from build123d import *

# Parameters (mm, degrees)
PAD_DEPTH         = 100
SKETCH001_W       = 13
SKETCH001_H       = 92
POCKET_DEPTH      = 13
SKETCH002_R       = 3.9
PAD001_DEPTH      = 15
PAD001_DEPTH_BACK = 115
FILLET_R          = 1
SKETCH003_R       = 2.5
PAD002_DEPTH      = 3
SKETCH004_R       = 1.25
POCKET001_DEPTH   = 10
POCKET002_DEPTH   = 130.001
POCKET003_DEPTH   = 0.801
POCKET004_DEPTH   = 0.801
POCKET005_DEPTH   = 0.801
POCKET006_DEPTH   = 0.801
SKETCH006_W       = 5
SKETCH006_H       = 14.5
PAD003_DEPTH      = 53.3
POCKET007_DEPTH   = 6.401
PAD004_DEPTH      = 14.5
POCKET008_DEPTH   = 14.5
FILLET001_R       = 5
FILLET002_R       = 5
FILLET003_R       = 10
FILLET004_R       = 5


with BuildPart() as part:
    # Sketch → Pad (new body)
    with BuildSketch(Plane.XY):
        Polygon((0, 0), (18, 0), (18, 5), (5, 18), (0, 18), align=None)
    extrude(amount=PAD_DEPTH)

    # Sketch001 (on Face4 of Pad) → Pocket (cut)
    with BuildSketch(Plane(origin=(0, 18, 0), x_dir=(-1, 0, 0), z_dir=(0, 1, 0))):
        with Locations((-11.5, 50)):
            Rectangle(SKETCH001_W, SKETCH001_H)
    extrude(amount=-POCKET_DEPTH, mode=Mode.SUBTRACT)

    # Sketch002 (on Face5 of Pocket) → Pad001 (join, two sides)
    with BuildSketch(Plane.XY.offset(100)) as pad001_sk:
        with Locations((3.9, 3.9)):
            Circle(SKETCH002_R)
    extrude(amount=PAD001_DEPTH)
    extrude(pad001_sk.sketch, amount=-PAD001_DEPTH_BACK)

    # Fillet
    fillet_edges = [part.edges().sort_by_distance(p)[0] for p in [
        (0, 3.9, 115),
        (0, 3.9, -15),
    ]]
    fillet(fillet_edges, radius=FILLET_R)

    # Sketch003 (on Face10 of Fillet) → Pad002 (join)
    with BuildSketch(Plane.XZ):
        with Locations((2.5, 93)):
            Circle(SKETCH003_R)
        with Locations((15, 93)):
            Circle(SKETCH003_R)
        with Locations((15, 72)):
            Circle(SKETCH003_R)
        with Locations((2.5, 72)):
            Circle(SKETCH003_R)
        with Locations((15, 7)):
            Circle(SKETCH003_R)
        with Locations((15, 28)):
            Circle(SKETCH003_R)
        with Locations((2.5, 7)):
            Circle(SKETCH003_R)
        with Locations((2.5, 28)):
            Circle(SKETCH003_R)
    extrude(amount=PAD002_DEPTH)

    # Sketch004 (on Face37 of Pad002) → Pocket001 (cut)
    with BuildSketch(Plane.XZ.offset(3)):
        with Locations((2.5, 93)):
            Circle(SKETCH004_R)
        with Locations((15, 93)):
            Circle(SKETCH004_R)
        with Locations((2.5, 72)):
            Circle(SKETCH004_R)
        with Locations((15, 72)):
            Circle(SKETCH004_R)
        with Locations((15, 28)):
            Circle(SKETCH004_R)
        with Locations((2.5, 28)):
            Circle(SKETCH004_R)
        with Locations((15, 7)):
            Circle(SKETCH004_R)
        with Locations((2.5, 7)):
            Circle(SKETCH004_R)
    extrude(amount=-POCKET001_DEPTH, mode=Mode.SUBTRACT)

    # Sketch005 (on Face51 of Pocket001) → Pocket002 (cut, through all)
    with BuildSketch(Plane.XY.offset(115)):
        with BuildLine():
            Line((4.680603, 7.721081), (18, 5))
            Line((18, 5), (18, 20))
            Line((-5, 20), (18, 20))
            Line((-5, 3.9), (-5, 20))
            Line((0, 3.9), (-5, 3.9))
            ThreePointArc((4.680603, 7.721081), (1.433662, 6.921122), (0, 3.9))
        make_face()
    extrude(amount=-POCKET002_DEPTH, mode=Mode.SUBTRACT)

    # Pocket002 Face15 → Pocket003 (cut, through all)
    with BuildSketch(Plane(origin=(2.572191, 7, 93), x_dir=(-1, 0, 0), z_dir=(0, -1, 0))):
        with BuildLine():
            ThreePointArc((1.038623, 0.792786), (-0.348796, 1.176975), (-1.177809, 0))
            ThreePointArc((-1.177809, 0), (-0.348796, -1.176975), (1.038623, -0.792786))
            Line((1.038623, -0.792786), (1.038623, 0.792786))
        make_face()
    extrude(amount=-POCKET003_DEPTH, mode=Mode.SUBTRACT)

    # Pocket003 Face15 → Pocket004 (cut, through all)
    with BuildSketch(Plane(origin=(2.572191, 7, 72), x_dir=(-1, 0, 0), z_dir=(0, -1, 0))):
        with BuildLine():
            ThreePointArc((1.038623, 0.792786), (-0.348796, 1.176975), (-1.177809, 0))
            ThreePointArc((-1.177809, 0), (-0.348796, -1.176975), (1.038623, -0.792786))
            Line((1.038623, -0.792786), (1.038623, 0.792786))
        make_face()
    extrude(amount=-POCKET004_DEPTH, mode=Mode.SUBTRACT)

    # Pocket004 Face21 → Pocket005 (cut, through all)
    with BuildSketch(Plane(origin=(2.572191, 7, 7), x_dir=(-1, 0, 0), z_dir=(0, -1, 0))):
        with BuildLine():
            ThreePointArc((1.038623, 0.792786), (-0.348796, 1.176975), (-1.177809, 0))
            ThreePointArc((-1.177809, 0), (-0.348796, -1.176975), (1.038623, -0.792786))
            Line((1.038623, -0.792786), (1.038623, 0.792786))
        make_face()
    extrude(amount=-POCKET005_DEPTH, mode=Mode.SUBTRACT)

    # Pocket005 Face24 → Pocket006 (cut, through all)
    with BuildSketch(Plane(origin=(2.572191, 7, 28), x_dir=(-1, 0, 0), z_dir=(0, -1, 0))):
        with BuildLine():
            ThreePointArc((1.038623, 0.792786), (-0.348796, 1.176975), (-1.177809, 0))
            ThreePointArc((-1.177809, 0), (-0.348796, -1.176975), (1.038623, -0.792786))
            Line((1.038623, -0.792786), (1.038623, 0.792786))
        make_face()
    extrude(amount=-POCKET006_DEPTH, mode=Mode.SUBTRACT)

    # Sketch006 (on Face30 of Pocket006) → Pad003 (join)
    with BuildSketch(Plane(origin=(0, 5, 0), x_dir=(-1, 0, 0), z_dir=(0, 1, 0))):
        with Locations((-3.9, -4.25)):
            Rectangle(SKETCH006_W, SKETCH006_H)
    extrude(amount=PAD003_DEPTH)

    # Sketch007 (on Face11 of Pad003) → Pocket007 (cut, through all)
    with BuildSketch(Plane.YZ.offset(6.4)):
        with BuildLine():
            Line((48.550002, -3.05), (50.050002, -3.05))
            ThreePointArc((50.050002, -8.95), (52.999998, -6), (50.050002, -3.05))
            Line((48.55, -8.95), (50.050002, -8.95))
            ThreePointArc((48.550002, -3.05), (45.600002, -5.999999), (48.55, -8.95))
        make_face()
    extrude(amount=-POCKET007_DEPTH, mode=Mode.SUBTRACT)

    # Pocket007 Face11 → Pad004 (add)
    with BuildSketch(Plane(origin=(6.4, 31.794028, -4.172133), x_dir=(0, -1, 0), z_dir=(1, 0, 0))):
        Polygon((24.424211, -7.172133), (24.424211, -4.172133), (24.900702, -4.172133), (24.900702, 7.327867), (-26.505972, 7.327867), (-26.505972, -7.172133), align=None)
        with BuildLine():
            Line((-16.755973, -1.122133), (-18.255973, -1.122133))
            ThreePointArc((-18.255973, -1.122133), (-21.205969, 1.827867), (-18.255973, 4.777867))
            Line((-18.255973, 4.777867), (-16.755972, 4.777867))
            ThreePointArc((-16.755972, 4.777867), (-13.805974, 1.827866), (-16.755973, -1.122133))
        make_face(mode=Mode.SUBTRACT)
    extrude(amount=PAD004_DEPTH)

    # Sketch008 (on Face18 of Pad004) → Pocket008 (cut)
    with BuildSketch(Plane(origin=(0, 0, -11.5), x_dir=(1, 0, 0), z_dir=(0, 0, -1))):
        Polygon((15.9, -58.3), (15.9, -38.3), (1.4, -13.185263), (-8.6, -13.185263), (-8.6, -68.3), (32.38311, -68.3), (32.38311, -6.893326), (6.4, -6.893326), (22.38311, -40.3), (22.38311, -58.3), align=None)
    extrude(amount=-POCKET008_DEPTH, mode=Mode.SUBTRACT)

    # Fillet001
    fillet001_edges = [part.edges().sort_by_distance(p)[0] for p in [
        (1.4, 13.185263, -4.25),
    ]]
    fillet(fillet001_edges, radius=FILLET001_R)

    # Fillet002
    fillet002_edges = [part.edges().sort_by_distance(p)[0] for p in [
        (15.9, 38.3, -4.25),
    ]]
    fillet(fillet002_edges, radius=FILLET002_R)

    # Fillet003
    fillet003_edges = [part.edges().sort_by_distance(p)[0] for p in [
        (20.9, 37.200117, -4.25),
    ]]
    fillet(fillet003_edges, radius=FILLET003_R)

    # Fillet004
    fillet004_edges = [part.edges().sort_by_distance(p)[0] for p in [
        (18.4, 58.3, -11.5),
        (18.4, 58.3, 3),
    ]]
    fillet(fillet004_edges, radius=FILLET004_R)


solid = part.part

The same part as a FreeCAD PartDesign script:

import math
import FreeCAD as App
import Part
import Sketcher
Q = App.Units.Quantity


def edges_at(feature, points):
    """Names of the edges that pass closest to the given points."""
    edges = feature.Shape.Edges
    near = lambda p: min(range(len(edges)), key=lambda i: edges[i].distToShape(Part.Vertex(*p))[0])
    return sorted({f"Edge{near(p) + 1}" for p in points})

doc = App.newDocument("Part")
body = doc.addObject("PartDesign::Body", "Body")

# Sketch on XY plane
sketch1 = body.newObject("Sketcher::SketchObject", "Sketch")
sketch1.AttachmentSupport = (doc.getObject("XY_Plane"), [""])
sketch1.MapMode = "FlatFace"
sketch1.addGeometry(Part.LineSegment(App.Vector(0, 0, 0), App.Vector(18, 0, 0)), False)
sketch1.addGeometry(Part.LineSegment(App.Vector(18, 0, 0), App.Vector(18, 5, 0)), False)
sketch1.addGeometry(Part.LineSegment(App.Vector(18, 5, 0), App.Vector(5, 18, 0)), False)
sketch1.addGeometry(Part.LineSegment(App.Vector(5, 18, 0), App.Vector(0, 18, 0)), False)
sketch1.addGeometry(Part.LineSegment(App.Vector(0, 18, 0), App.Vector(0, 0, 0)), False)
sketch1.addConstraint(Sketcher.Constraint("Coincident", 0, 2, 1, 1))
sketch1.addConstraint(Sketcher.Constraint("Coincident", 1, 2, 2, 1))
sketch1.addConstraint(Sketcher.Constraint("Coincident", 2, 2, 3, 1))
sketch1.addConstraint(Sketcher.Constraint("Coincident", 3, 2, 4, 1))
sketch1.addConstraint(Sketcher.Constraint("Coincident", 4, 2, 0, 1))
sketch1.addConstraint(Sketcher.Constraint("Horizontal", 0))
sketch1.addConstraint(Sketcher.Constraint("Vertical", 1))
sketch1.addConstraint(Sketcher.Constraint("Horizontal", 3))
sketch1.addConstraint(Sketcher.Constraint("Vertical", 4))
sketch1.addConstraint(Sketcher.Constraint("Coincident", 4, 2, -1, 1))
sketch1.addConstraint(Sketcher.Constraint("Equal", 3, 1))
sketch1.addConstraint(Sketcher.Constraint("Equal", 0, 4))
sketch1.addConstraint(Sketcher.Constraint("DistanceX", 0, 1, 0, 2, 18.0))
sketch1.addConstraint(Sketcher.Constraint("DistanceX", 3, 2, 3, 1, 5.0))
pad1 = body.newObject("PartDesign::Pad", "Pad")
pad1.Profile = sketch1
pad1.Length = 100

# Sketch on XZ plane
sketch2 = body.newObject("Sketcher::SketchObject", "Sketch001")
sketch2.AttachmentSupport = (doc.getObject("XZ_Plane"), [""])
sketch2.MapMode = "FlatFace"
sketch2.AttachmentOffset = App.Placement(App.Vector(0, 0, -18), App.Rotation())
sketch2.addGeometry(Part.LineSegment(App.Vector(18, 96, 0), App.Vector(18, 4, 0)), False)
sketch2.addGeometry(Part.LineSegment(App.Vector(18, 4, 0), App.Vector(5, 4, 0)), False)
sketch2.addGeometry(Part.LineSegment(App.Vector(5, 4, 0), App.Vector(5, 96, 0)), False)
sketch2.addGeometry(Part.LineSegment(App.Vector(5, 96, 0), App.Vector(18, 96, 0)), False)
sketch2.addConstraint(Sketcher.Constraint("Coincident", 0, 2, 1, 1))
sketch2.addConstraint(Sketcher.Constraint("Coincident", 1, 2, 2, 1))
sketch2.addConstraint(Sketcher.Constraint("Coincident", 2, 2, 3, 1))
sketch2.addConstraint(Sketcher.Constraint("Coincident", 3, 2, 0, 1))
sketch2.addConstraint(Sketcher.Constraint("Vertical", 0))
sketch2.addConstraint(Sketcher.Constraint("Horizontal", 1))
sketch2.addConstraint(Sketcher.Constraint("Vertical", 2))
sketch2.addConstraint(Sketcher.Constraint("Horizontal", 3))
sketch2.addConstraint(Sketcher.Constraint("DistanceX", 1, 2, 1, 1, 13.0))
sketch2.addConstraint(Sketcher.Constraint("DistanceY", 0, 2, 0, 1, 92.0))
sketch2.addConstraint(Sketcher.Constraint("DistanceX", -1, 1, 0, 2, 18.0))
sketch2.addConstraint(Sketcher.Constraint("DistanceY", -1, 1, 0, 2, 4.0))
pocket1 = body.newObject("PartDesign::Pocket", "Pocket")
pocket1.Profile = sketch2
pocket1.Length = 13
pocket1.Reversed = True

# Sketch on XY plane
sketch3 = body.newObject("Sketcher::SketchObject", "Sketch002")
sketch3.AttachmentSupport = (doc.getObject("XY_Plane"), [""])
sketch3.MapMode = "FlatFace"
sketch3.AttachmentOffset = App.Placement(App.Vector(0, 0, 100), App.Rotation())
sketch3.addGeometry(Part.Circle(App.Vector(3.9, 3.9, 0), App.Vector(0, 0, 1), 3.9), False)
sketch3.addConstraint(Sketcher.Constraint("Diameter", 0, 7.8))
sketch3.addConstraint(Sketcher.Constraint("DistanceX", -1, 1, 0, 3, 3.9))
sketch3.addConstraint(Sketcher.Constraint("DistanceY", -1, 1, 0, 3, 3.9))
pad2 = body.newObject("PartDesign::Pad", "Pad001")
pad2.Profile = sketch3
pad2.Type = "TwoLengths"
pad2.Length = 15
pad2.Length2 = 115
doc.recompute()

fillet = body.newObject("PartDesign::Fillet", "Fillet")
fillet.Base = (pad2, edges_at(pad2, [(0, 3.9, 115), (0, 3.9, -15)]))
fillet.Radius = 1

# Sketch on XZ plane
sketch4 = body.newObject("Sketcher::SketchObject", "Sketch003")
sketch4.AttachmentSupport = (doc.getObject("XZ_Plane"), [""])
sketch4.MapMode = "FlatFace"
sketch4.addGeometry(Part.Circle(App.Vector(2.5, 93, 0), App.Vector(0, 0, 1), 2.5), False)
sketch4.addGeometry(Part.Circle(App.Vector(15, 93, 0), App.Vector(0, 0, 1), 2.5), False)
sketch4.addGeometry(Part.Circle(App.Vector(15, 72, 0), App.Vector(0, 0, 1), 2.5), False)
sketch4.addGeometry(Part.Circle(App.Vector(2.5, 72, 0), App.Vector(0, 0, 1), 2.5), False)
sketch4.addGeometry(Part.Circle(App.Vector(15, 7, 0), App.Vector(0, 0, 1), 2.5), False)
sketch4.addGeometry(Part.Circle(App.Vector(15, 28, 0), App.Vector(0, 0, 1), 2.5), False)
sketch4.addGeometry(Part.Circle(App.Vector(2.5, 7, 0), App.Vector(0, 0, 1), 2.5), False)
sketch4.addGeometry(Part.Circle(App.Vector(2.5, 28, 0), App.Vector(0, 0, 1), 2.5), False)
sketch4.addConstraint(Sketcher.Constraint("Equal", 0, 1))
sketch4.addConstraint(Sketcher.Constraint("Equal", 1, 2))
sketch4.addConstraint(Sketcher.Constraint("Equal", 2, 3))
sketch4.addConstraint(Sketcher.Constraint("Equal", 3, 4))
sketch4.addConstraint(Sketcher.Constraint("Equal", 4, 5))
sketch4.addConstraint(Sketcher.Constraint("Equal", 5, 6))
sketch4.addConstraint(Sketcher.Constraint("Equal", 6, 7))
sketch4.addConstraint(Sketcher.Constraint("Horizontal", 0, 3, 1, 3))
sketch4.addConstraint(Sketcher.Constraint("Horizontal", 2, 3, 3, 3))
sketch4.addConstraint(Sketcher.Constraint("Horizontal", 4, 3, 6, 3))
sketch4.addConstraint(Sketcher.Constraint("Horizontal", 5, 3, 7, 3))
sketch4.addConstraint(Sketcher.Constraint("Vertical", 1, 3, 2, 3))
sketch4.addConstraint(Sketcher.Constraint("Vertical", 0, 3, 3, 3))
sketch4.addConstraint(Sketcher.Constraint("Vertical", 2, 3, 4, 3))
sketch4.addConstraint(Sketcher.Constraint("Vertical", 4, 3, 5, 3))
sketch4.addConstraint(Sketcher.Constraint("Vertical", 3, 3, 6, 3))
sketch4.addConstraint(Sketcher.Constraint("Vertical", 6, 3, 7, 3))
sketch4.addConstraint(Sketcher.Constraint("Diameter", 0, 5.0))
sketch4.addConstraint(Sketcher.Constraint("DistanceY", -1, 1, 0, 3, 93.0))
sketch4.addConstraint(Sketcher.Constraint("DistanceX", -1, 1, 1, 3, 15.0))
sketch4.addConstraint(Sketcher.Constraint("DistanceY", -1, 1, 2, 3, 72.0))
sketch4.addConstraint(Sketcher.Constraint("DistanceY", -1, 1, 4, 3, 7.0))
sketch4.addConstraint(Sketcher.Constraint("DistanceY", -1, 1, 5, 3, 28.0))
sketch4.addConstraint(Sketcher.Constraint("DistanceX", -1, 1, 0, 3, 2.5))
pad3 = body.newObject("PartDesign::Pad", "Pad002")
pad3.Profile = sketch4
pad3.Length = 3

# Sketch on XZ plane
sketch5 = body.newObject("Sketcher::SketchObject", "Sketch004")
sketch5.AttachmentSupport = (doc.getObject("XZ_Plane"), [""])
sketch5.MapMode = "FlatFace"
sketch5.AttachmentOffset = App.Placement(App.Vector(0, 0, 3), App.Rotation())
sketch5.addGeometry(Part.Circle(App.Vector(2.5, 93, 0), App.Vector(0, 0, 1), 1.25), False)
sketch5.addGeometry(Part.Circle(App.Vector(15, 93, 0), App.Vector(0, 0, 1), 1.25), False)
sketch5.addGeometry(Part.Circle(App.Vector(2.5, 72, 0), App.Vector(0, 0, 1), 1.25), False)
sketch5.addGeometry(Part.Circle(App.Vector(15, 72, 0), App.Vector(0, 0, 1), 1.25), False)
sketch5.addGeometry(Part.Circle(App.Vector(15, 28, 0), App.Vector(0, 0, 1), 1.25), False)
sketch5.addGeometry(Part.Circle(App.Vector(2.5, 28, 0), App.Vector(0, 0, 1), 1.25), False)
sketch5.addGeometry(Part.Circle(App.Vector(15, 7, 0), App.Vector(0, 0, 1), 1.25), False)
sketch5.addGeometry(Part.Circle(App.Vector(2.5, 7, 0), App.Vector(0, 0, 1), 1.25), False)
sketch5.addConstraint(Sketcher.Constraint("Equal", 0, 1))
sketch5.addConstraint(Sketcher.Constraint("Equal", 1, 2))
sketch5.addConstraint(Sketcher.Constraint("Equal", 2, 3))
sketch5.addConstraint(Sketcher.Constraint("Equal", 3, 4))
sketch5.addConstraint(Sketcher.Constraint("Equal", 4, 5))
sketch5.addConstraint(Sketcher.Constraint("Equal", 5, 6))
sketch5.addConstraint(Sketcher.Constraint("Equal", 6, 7))
sketch5.addConstraint(Sketcher.Constraint("Horizontal", 0, 3, 1, 3))
sketch5.addConstraint(Sketcher.Constraint("Horizontal", 2, 3, 3, 3))
sketch5.addConstraint(Sketcher.Constraint("Horizontal", 4, 3, 5, 3))
sketch5.addConstraint(Sketcher.Constraint("Horizontal", 6, 3, 7, 3))
sketch5.addConstraint(Sketcher.Constraint("Vertical", 0, 3, 2, 3))
sketch5.addConstraint(Sketcher.Constraint("Vertical", 1, 3, 3, 3))
sketch5.addConstraint(Sketcher.Constraint("Vertical", 3, 3, 4, 3))
sketch5.addConstraint(Sketcher.Constraint("Vertical", 2, 3, 5, 3))
sketch5.addConstraint(Sketcher.Constraint("Vertical", 4, 3, 6, 3))
sketch5.addConstraint(Sketcher.Constraint("Vertical", 5, 3, 7, 3))
sketch5.addConstraint(Sketcher.Constraint("Diameter", 0, 2.5))
sketch5.addConstraint(Sketcher.Constraint("DistanceY", -1, 1, 0, 3, 93.0))
sketch5.addConstraint(Sketcher.Constraint("DistanceX", -1, 1, 1, 3, 15.0))
sketch5.addConstraint(Sketcher.Constraint("DistanceY", -1, 1, 2, 3, 72.0))
sketch5.addConstraint(Sketcher.Constraint("DistanceY", -1, 1, 4, 3, 28.0))
sketch5.addConstraint(Sketcher.Constraint("DistanceY", -1, 1, 6, 3, 7.0))
sketch5.addConstraint(Sketcher.Constraint("DistanceX", -1, 1, 0, 3, 2.5))
pocket2 = body.newObject("PartDesign::Pocket", "Pocket001")
pocket2.Profile = sketch5
pocket2.Length = 10

# Sketch on XY plane
sketch6 = body.newObject("Sketcher::SketchObject", "Sketch005")
sketch6.AttachmentSupport = (doc.getObject("XY_Plane"), [""])
sketch6.MapMode = "FlatFace"
sketch6.AttachmentOffset = App.Placement(App.Vector(0, 0, 115), App.Rotation())
sketch6.addGeometry(Part.LineSegment(App.Vector(4.680603, 7.721081, 0), App.Vector(18, 5, 0)), False)
sketch6.addGeometry(Part.LineSegment(App.Vector(18, 5, 0), App.Vector(18, 20, 0)), False)
sketch6.addGeometry(Part.LineSegment(App.Vector(18, 20, 0), App.Vector(-5, 20, 0)), False)
sketch6.addGeometry(Part.LineSegment(App.Vector(-5, 20, 0), App.Vector(-5, 3.9, 0)), False)
sketch6.addGeometry(Part.LineSegment(App.Vector(-5, 3.9, 0), App.Vector(0, 3.9, 0)), False)
sketch6.addGeometry(Part.ArcOfCircle(Part.Circle(App.Vector(3.9, 3.9, 0), App.Vector(0, 0, 1), 3.9), math.radians(78.453998), math.radians(180.000004)), False)
sketch6.addConstraint(Sketcher.Constraint("Coincident", 0, 2, 1, 1))
sketch6.addConstraint(Sketcher.Constraint("Coincident", 1, 2, 2, 1))
sketch6.addConstraint(Sketcher.Constraint("Coincident", 2, 2, 3, 1))
sketch6.addConstraint(Sketcher.Constraint("Coincident", 3, 2, 4, 1))
sketch6.addConstraint(Sketcher.Constraint("Coincident", 4, 2, 5, 2))
sketch6.addConstraint(Sketcher.Constraint("Coincident", 5, 1, 0, 1))
sketch6.addConstraint(Sketcher.Constraint("Vertical", 1))
sketch6.addConstraint(Sketcher.Constraint("Horizontal", 2))
sketch6.addConstraint(Sketcher.Constraint("Vertical", 3))
sketch6.addConstraint(Sketcher.Constraint("Horizontal", 4))
sketch6.addConstraint(Sketcher.Constraint("PointOnObject", 4, 2, -2))
sketch6.addConstraint(Sketcher.Constraint("Horizontal", 5, 3, 3, 2))
sketch6.addConstraint(Sketcher.Constraint("Radius", 5, 3.9))
sketch6.addConstraint(Sketcher.Constraint("DistanceX", 2, 2, 2, 1, 23.0))
sketch6.addConstraint(Sketcher.Constraint("DistanceX", 4, 1, 4, 2, 5.0))
sketch6.addConstraint(Sketcher.Constraint("DistanceY", 1, 1, 1, 2, 15.0))
sketch6.addConstraint(Sketcher.Constraint("DistanceY", 3, 2, 3, 1, 16.1))
sketch6.addConstraint(Sketcher.Constraint("DistanceY", -1, 1, 0, 2, 5.0))
sketch6.addConstraint(Sketcher.Constraint("DistanceY", -1, 1, 5, 1, 7.721081))
pocket3 = body.newObject("PartDesign::Pocket", "Pocket002")
pocket3.Profile = sketch6
pocket3.Type = "ThroughAll"

# Sketch on XZ plane
sketch7 = body.newObject("Sketcher::SketchObject", "Sketch006")
sketch7.AttachmentSupport = (doc.getObject("XZ_Plane"), [""])
sketch7.MapMode = "FlatFace"
sketch7.AttachmentOffset = App.Placement(App.Vector(0, 0, -7), App.Rotation())
sketch7.addGeometry(Part.ArcOfCircle(Part.Circle(App.Vector(2.5, 93, 0), App.Vector(0, 0, 1), 1.25), math.radians(-140.637195), math.radians(0.000001)), False)
sketch7.addGeometry(Part.ArcOfCircle(Part.Circle(App.Vector(2.5, 93, 0), App.Vector(0, 0, 1), 1.25), math.radians(-0.000001), math.radians(140.637195)), False)
sketch7.addGeometry(Part.LineSegment(App.Vector(1.533568, 93.792786, 0), App.Vector(1.533568, 92.207214, 0)), False)
sketch7.addConstraint(Sketcher.Constraint("Tangent", 0, 2, 1, 1))
sketch7.addConstraint(Sketcher.Constraint("Coincident", 1, 2, 2, 1))
sketch7.addConstraint(Sketcher.Constraint("Coincident", 2, 2, 0, 1))
sketch7.addConstraint(Sketcher.Constraint("Vertical", 2))
sketch7.addConstraint(Sketcher.Constraint("Equal", 0, 1))
sketch7.addConstraint(Sketcher.Constraint("Horizontal", 1, 3, 0, 2))
sketch7.addConstraint(Sketcher.Constraint("Radius", 0, 1.25))
sketch7.addConstraint(Sketcher.Constraint("DistanceY", -1, 1, 0, 3, 93.0))
sketch7.addConstraint(Sketcher.Constraint("DistanceX", -1, 1, 0, 3, 2.5))
sketch7.addConstraint(Sketcher.Constraint("DistanceY", 2, 2, 2, 1, 1.585572))
pocket4 = body.newObject("PartDesign::Pocket", "Pocket003")
pocket4.Profile = sketch7
pocket4.Type = "ThroughAll"

# Sketch on XZ plane
sketch8 = body.newObject("Sketcher::SketchObject", "Sketch007")
sketch8.AttachmentSupport = (doc.getObject("XZ_Plane"), [""])
sketch8.MapMode = "FlatFace"
sketch8.AttachmentOffset = App.Placement(App.Vector(0, 0, -7), App.Rotation())
sketch8.addGeometry(Part.ArcOfCircle(Part.Circle(App.Vector(2.5, 72, 0), App.Vector(0, 0, 1), 1.25), math.radians(-140.637195), math.radians(0.000001)), False)
sketch8.addGeometry(Part.ArcOfCircle(Part.Circle(App.Vector(2.5, 72, 0), App.Vector(0, 0, 1), 1.25), math.radians(-0.000001), math.radians(140.637195)), False)
sketch8.addGeometry(Part.LineSegment(App.Vector(1.533568, 72.792786, 0), App.Vector(1.533568, 71.207214, 0)), False)
sketch8.addConstraint(Sketcher.Constraint("Tangent", 0, 2, 1, 1))
sketch8.addConstraint(Sketcher.Constraint("Coincident", 1, 2, 2, 1))
sketch8.addConstraint(Sketcher.Constraint("Coincident", 2, 2, 0, 1))
sketch8.addConstraint(Sketcher.Constraint("Vertical", 2))
sketch8.addConstraint(Sketcher.Constraint("Equal", 0, 1))
sketch8.addConstraint(Sketcher.Constraint("Horizontal", 1, 3, 0, 2))
sketch8.addConstraint(Sketcher.Constraint("Radius", 0, 1.25))
sketch8.addConstraint(Sketcher.Constraint("DistanceY", -1, 1, 0, 3, 72.0))
sketch8.addConstraint(Sketcher.Constraint("DistanceX", -1, 1, 0, 3, 2.5))
sketch8.addConstraint(Sketcher.Constraint("DistanceY", 2, 2, 2, 1, 1.585572))
pocket5 = body.newObject("PartDesign::Pocket", "Pocket004")
pocket5.Profile = sketch8
pocket5.Type = "ThroughAll"

# Sketch on XZ plane
sketch9 = body.newObject("Sketcher::SketchObject", "Sketch008")
sketch9.AttachmentSupport = (doc.getObject("XZ_Plane"), [""])
sketch9.MapMode = "FlatFace"
sketch9.AttachmentOffset = App.Placement(App.Vector(0, 0, -7), App.Rotation())
sketch9.addGeometry(Part.ArcOfCircle(Part.Circle(App.Vector(2.5, 7, 0), App.Vector(0, 0, 1), 1.25), math.radians(-140.637195), math.radians(0.000001)), False)
sketch9.addGeometry(Part.ArcOfCircle(Part.Circle(App.Vector(2.5, 7, 0), App.Vector(0, 0, 1), 1.25), math.radians(-0.000001), math.radians(140.637195)), False)
sketch9.addGeometry(Part.LineSegment(App.Vector(1.533568, 7.792786, 0), App.Vector(1.533568, 6.207214, 0)), False)
sketch9.addConstraint(Sketcher.Constraint("Tangent", 0, 2, 1, 1))
sketch9.addConstraint(Sketcher.Constraint("Coincident", 1, 2, 2, 1))
sketch9.addConstraint(Sketcher.Constraint("Coincident", 2, 2, 0, 1))
sketch9.addConstraint(Sketcher.Constraint("Vertical", 2))
sketch9.addConstraint(Sketcher.Constraint("Equal", 0, 1))
sketch9.addConstraint(Sketcher.Constraint("Horizontal", 1, 3, 0, 2))
sketch9.addConstraint(Sketcher.Constraint("Radius", 0, 1.25))
sketch9.addConstraint(Sketcher.Constraint("DistanceY", -1, 1, 0, 3, 7.0))
sketch9.addConstraint(Sketcher.Constraint("DistanceX", -1, 1, 0, 3, 2.5))
sketch9.addConstraint(Sketcher.Constraint("DistanceY", 2, 2, 2, 1, 1.585572))
pocket6 = body.newObject("PartDesign::Pocket", "Pocket005")
pocket6.Profile = sketch9
pocket6.Type = "ThroughAll"

# Sketch on XZ plane
sketch10 = body.newObject("Sketcher::SketchObject", "Sketch009")
sketch10.AttachmentSupport = (doc.getObject("XZ_Plane"), [""])
sketch10.MapMode = "FlatFace"
sketch10.AttachmentOffset = App.Placement(App.Vector(0, 0, -7), App.Rotation())
sketch10.addGeometry(Part.ArcOfCircle(Part.Circle(App.Vector(2.5, 28, 0), App.Vector(0, 0, 1), 1.25), math.radians(-140.637195), math.radians(0.000001)), False)
sketch10.addGeometry(Part.ArcOfCircle(Part.Circle(App.Vector(2.5, 28, 0), App.Vector(0, 0, 1), 1.25), math.radians(-0.000001), math.radians(140.637195)), False)
sketch10.addGeometry(Part.LineSegment(App.Vector(1.533568, 28.792786, 0), App.Vector(1.533568, 27.207214, 0)), False)
sketch10.addConstraint(Sketcher.Constraint("Tangent", 0, 2, 1, 1))
sketch10.addConstraint(Sketcher.Constraint("Coincident", 1, 2, 2, 1))
sketch10.addConstraint(Sketcher.Constraint("Coincident", 2, 2, 0, 1))
sketch10.addConstraint(Sketcher.Constraint("Vertical", 2))
sketch10.addConstraint(Sketcher.Constraint("Equal", 0, 1))
sketch10.addConstraint(Sketcher.Constraint("Horizontal", 1, 3, 0, 2))
sketch10.addConstraint(Sketcher.Constraint("Radius", 0, 1.25))
sketch10.addConstraint(Sketcher.Constraint("DistanceY", -1, 1, 0, 3, 28.0))
sketch10.addConstraint(Sketcher.Constraint("DistanceX", -1, 1, 0, 3, 2.5))
sketch10.addConstraint(Sketcher.Constraint("DistanceY", 2, 2, 2, 1, 1.585572))
pocket7 = body.newObject("PartDesign::Pocket", "Pocket006")
pocket7.Profile = sketch10
pocket7.Type = "ThroughAll"

# Sketch on XZ plane
sketch11 = body.newObject("Sketcher::SketchObject", "Sketch010")
sketch11.AttachmentSupport = (doc.getObject("XZ_Plane"), [""])
sketch11.MapMode = "FlatFace"
sketch11.AttachmentOffset = App.Placement(App.Vector(0, 0, -5), App.Rotation())
sketch11.addGeometry(Part.LineSegment(App.Vector(6.4, 3, 0), App.Vector(6.4, -11.5, 0)), False)
sketch11.addGeometry(Part.LineSegment(App.Vector(6.4, -11.5, 0), App.Vector(1.4, -11.5, 0)), False)
sketch11.addGeometry(Part.LineSegment(App.Vector(1.4, -11.5, 0), App.Vector(1.4, 3, 0)), False)
sketch11.addGeometry(Part.LineSegment(App.Vector(1.4, 3, 0), App.Vector(6.4, 3, 0)), False)
sketch11.addConstraint(Sketcher.Constraint("Coincident", 0, 2, 1, 1))
sketch11.addConstraint(Sketcher.Constraint("Coincident", 1, 2, 2, 1))
sketch11.addConstraint(Sketcher.Constraint("Coincident", 2, 2, 3, 1))
sketch11.addConstraint(Sketcher.Constraint("Coincident", 3, 2, 0, 1))
sketch11.addConstraint(Sketcher.Constraint("Vertical", 0))
sketch11.addConstraint(Sketcher.Constraint("Horizontal", 1))
sketch11.addConstraint(Sketcher.Constraint("Vertical", 2))
sketch11.addConstraint(Sketcher.Constraint("Horizontal", 3))
sketch11.addConstraint(Sketcher.Constraint("DistanceX", 1, 2, 1, 1, 5.0))
sketch11.addConstraint(Sketcher.Constraint("DistanceY", 0, 2, 0, 1, 14.5))
sketch11.addConstraint(Sketcher.Constraint("DistanceY", -1, 1, 2, 2, 3.0))
sketch11.addConstraint(Sketcher.Constraint("DistanceX", -1, 1, 0, 2, 6.4))
pad4 = body.newObject("PartDesign::Pad", "Pad003")
pad4.Profile = sketch11
pad4.Length = 53.3
pad4.Reversed = True

# Sketch on YZ plane
sketch12 = body.newObject("Sketcher::SketchObject", "Sketch011")
sketch12.AttachmentSupport = (doc.getObject("YZ_Plane"), [""])
sketch12.MapMode = "FlatFace"
sketch12.AttachmentOffset = App.Placement(App.Vector(0, 0, 6.4), App.Rotation())
sketch12.addGeometry(Part.LineSegment(App.Vector(50.050002, -3.05, 0), App.Vector(48.550002, -3.05, 0)), False)
sketch12.addGeometry(Part.ArcOfCircle(Part.Circle(App.Vector(48.550002, -6, 0), App.Vector(0, 0, 1), 2.95), math.radians(90), math.radians(269.999961)), False)
sketch12.addGeometry(Part.LineSegment(App.Vector(48.55, -8.95, 0), App.Vector(50.050002, -8.95, 0)), False)
sketch12.addGeometry(Part.ArcOfCircle(Part.Circle(App.Vector(50.049998, -6, 0), App.Vector(0, 0, 1), 2.95), math.radians(-89.999922), math.radians(89.999922)), False)
sketch12.addConstraint(Sketcher.Constraint("Tangent", 0, 2, 1, 1))
sketch12.addConstraint(Sketcher.Constraint("Tangent", 1, 2, 2, 1))
sketch12.addConstraint(Sketcher.Constraint("Tangent", 2, 2, 3, 1))
sketch12.addConstraint(Sketcher.Constraint("Tangent", 3, 2, 0, 1))
sketch12.addConstraint(Sketcher.Constraint("Horizontal", 0))
sketch12.addConstraint(Sketcher.Constraint("Horizontal", 2))
sketch12.addConstraint(Sketcher.Constraint("Radius", 1, 2.95))
sketch12.addConstraint(Sketcher.Constraint("DistanceX", 0, 2, 0, 1, 1.5))
sketch12.addConstraint(Sketcher.Constraint("DistanceY", 1, 3, -1, 1, 6.0))
sketch12.addConstraint(Sketcher.Constraint("DistanceX", -1, 1, 3, 3, 50.049998))
pocket8 = body.newObject("PartDesign::Pocket", "Pocket007")
pocket8.Profile = sketch12
pocket8.Type = "ThroughAll"

# Sketch on YZ plane
sketch13 = body.newObject("Sketcher::SketchObject", "Sketch012")
sketch13.AttachmentSupport = (doc.getObject("YZ_Plane"), [""])
sketch13.MapMode = "FlatFace"
sketch13.AttachmentOffset = App.Placement(App.Vector(0, 0, 6.4), App.Rotation())
sketch13.addGeometry(Part.LineSegment(App.Vector(7.369817, 3, 0), App.Vector(7.369817, 0, 0)), False)
sketch13.addGeometry(Part.LineSegment(App.Vector(7.369817, 0, 0), App.Vector(6.893326, 0, 0)), False)
sketch13.addGeometry(Part.LineSegment(App.Vector(6.893326, 0, 0), App.Vector(6.893326, -11.5, 0)), False)
sketch13.addGeometry(Part.LineSegment(App.Vector(6.893326, -11.5, 0), App.Vector(58.3, -11.5, 0)), False)
sketch13.addGeometry(Part.LineSegment(App.Vector(58.3, -11.5, 0), App.Vector(58.3, 3, 0)), False)
sketch13.addGeometry(Part.LineSegment(App.Vector(58.3, 3, 0), App.Vector(7.369817, 3, 0)), False)
sketch13.addGeometry(Part.ArcOfCircle(Part.Circle(App.Vector(48.550002, -6, 0), App.Vector(0, 0, 1), 2.95), math.radians(90.000019), math.radians(269.999961)), False)
sketch13.addGeometry(Part.LineSegment(App.Vector(48.550001, -3.05, 0), App.Vector(50.050001, -3.05, 0)), False)
sketch13.addGeometry(Part.ArcOfCircle(Part.Circle(App.Vector(50.049997, -6, 0), App.Vector(0, 0, 1), 2.95), math.radians(-89.999922), math.radians(89.999922)), False)
sketch13.addGeometry(Part.LineSegment(App.Vector(50.050001, -8.95, 0), App.Vector(48.55, -8.95, 0)), False)
sketch13.addConstraint(Sketcher.Constraint("Coincident", 0, 2, 1, 1))
sketch13.addConstraint(Sketcher.Constraint("Coincident", 1, 2, 2, 1))
sketch13.addConstraint(Sketcher.Constraint("Coincident", 2, 2, 3, 1))
sketch13.addConstraint(Sketcher.Constraint("Coincident", 3, 2, 4, 1))
sketch13.addConstraint(Sketcher.Constraint("Coincident", 4, 2, 5, 1))
sketch13.addConstraint(Sketcher.Constraint("Coincident", 5, 2, 0, 1))
sketch13.addConstraint(Sketcher.Constraint("Tangent", 6, 1, 7, 1))
sketch13.addConstraint(Sketcher.Constraint("Tangent", 7, 2, 8, 2))
sketch13.addConstraint(Sketcher.Constraint("Tangent", 8, 1, 9, 1))
sketch13.addConstraint(Sketcher.Constraint("Tangent", 9, 2, 6, 2))
sketch13.addConstraint(Sketcher.Constraint("Vertical", 0))
sketch13.addConstraint(Sketcher.Constraint("Horizontal", 1))
sketch13.addConstraint(Sketcher.Constraint("Vertical", 2))
sketch13.addConstraint(Sketcher.Constraint("Horizontal", 3))
sketch13.addConstraint(Sketcher.Constraint("Vertical", 4))
sketch13.addConstraint(Sketcher.Constraint("Horizontal", 5))
sketch13.addConstraint(Sketcher.Constraint("Horizontal", 7))
sketch13.addConstraint(Sketcher.Constraint("Horizontal", 9))
sketch13.addConstraint(Sketcher.Constraint("PointOnObject", 0, 2, -1))
sketch13.addConstraint(Sketcher.Constraint("DistanceY", 0, 2, 0, 1, 3.0))
sketch13.addConstraint(Sketcher.Constraint("Radius", 6, 2.95))
sketch13.addConstraint(Sketcher.Constraint("DistanceX", 7, 1, 7, 2, 1.5))
sketch13.addConstraint(Sketcher.Constraint("DistanceY", 2, 2, 2, 1, 11.5))
sketch13.addConstraint(Sketcher.Constraint("DistanceY", 6, 3, -1, 1, 6.0))
sketch13.addConstraint(Sketcher.Constraint("DistanceX", -1, 1, 3, 2, 58.3))
sketch13.addConstraint(Sketcher.Constraint("DistanceX", -1, 1, 6, 1, 48.550001))
sketch13.addConstraint(Sketcher.Constraint("DistanceX", 1, 2, 1, 1, 0.476491))
sketch13.addConstraint(Sketcher.Constraint("DistanceX", 3, 1, 3, 2, 51.406674))
pad5 = body.newObject("PartDesign::Pad", "Pad004")
pad5.Profile = sketch13
pad5.Length = 14.5

# Sketch on XY plane
sketch14 = body.newObject("Sketcher::SketchObject", "Sketch013")
sketch14.AttachmentSupport = (doc.getObject("XY_Plane"), [""])
sketch14.MapMode = "FlatFace"
sketch14.AttachmentOffset = App.Placement(App.Vector(0, 0, -11.5), App.Rotation())
sketch14.addGeometry(Part.LineSegment(App.Vector(15.9, 58.3, 0), App.Vector(15.9, 38.3, 0)), False)
sketch14.addGeometry(Part.LineSegment(App.Vector(15.9, 38.3, 0), App.Vector(1.4, 13.185263, 0)), False)
sketch14.addGeometry(Part.LineSegment(App.Vector(1.4, 13.185263, 0), App.Vector(-8.6, 13.185263, 0)), False)
sketch14.addGeometry(Part.LineSegment(App.Vector(-8.6, 13.185263, 0), App.Vector(-8.6, 68.3, 0)), False)
sketch14.addGeometry(Part.LineSegment(App.Vector(-8.6, 68.3, 0), App.Vector(32.38311, 68.3, 0)), False)
sketch14.addGeometry(Part.LineSegment(App.Vector(32.38311, 68.3, 0), App.Vector(32.38311, 6.893326, 0)), False)
sketch14.addGeometry(Part.LineSegment(App.Vector(32.38311, 6.893326, 0), App.Vector(6.4, 6.893326, 0)), False)
sketch14.addGeometry(Part.LineSegment(App.Vector(6.4, 6.893326, 0), App.Vector(22.38311, 40.3, 0)), False)
sketch14.addGeometry(Part.LineSegment(App.Vector(22.38311, 40.3, 0), App.Vector(22.38311, 58.3, 0)), False)
sketch14.addGeometry(Part.LineSegment(App.Vector(22.38311, 58.3, 0), App.Vector(15.9, 58.3, 0)), False)
sketch14.addConstraint(Sketcher.Constraint("Coincident", 0, 2, 1, 1))
sketch14.addConstraint(Sketcher.Constraint("Coincident", 1, 2, 2, 1))
sketch14.addConstraint(Sketcher.Constraint("Coincident", 2, 2, 3, 1))
sketch14.addConstraint(Sketcher.Constraint("Coincident", 3, 2, 4, 1))
sketch14.addConstraint(Sketcher.Constraint("Coincident", 4, 2, 5, 1))
sketch14.addConstraint(Sketcher.Constraint("Coincident", 5, 2, 6, 1))
sketch14.addConstraint(Sketcher.Constraint("Coincident", 6, 2, 7, 1))
sketch14.addConstraint(Sketcher.Constraint("Coincident", 7, 2, 8, 1))
sketch14.addConstraint(Sketcher.Constraint("Coincident", 8, 2, 9, 1))
sketch14.addConstraint(Sketcher.Constraint("Coincident", 9, 2, 0, 1))
sketch14.addConstraint(Sketcher.Constraint("Vertical", 0))
sketch14.addConstraint(Sketcher.Constraint("Horizontal", 2))
sketch14.addConstraint(Sketcher.Constraint("Vertical", 3))
sketch14.addConstraint(Sketcher.Constraint("Horizontal", 4))
sketch14.addConstraint(Sketcher.Constraint("Vertical", 5))
sketch14.addConstraint(Sketcher.Constraint("Horizontal", 6))
sketch14.addConstraint(Sketcher.Constraint("Vertical", 8))
sketch14.addConstraint(Sketcher.Constraint("Horizontal", 9))
sketch14.addConstraint(Sketcher.Constraint("DistanceX", 2, 2, 2, 1, 10.0))
sketch14.addConstraint(Sketcher.Constraint("DistanceY", 0, 2, 0, 1, 20.0))
sketch14.addConstraint(Sketcher.Constraint("DistanceY", 8, 1, 8, 2, 18.0))
sketch14.addConstraint(Sketcher.Constraint("Angle", 1, Q("-120 deg")))
sketch14.addConstraint(Sketcher.Constraint("Distance", 1, 29.0))
sketch14.addConstraint(Sketcher.Constraint("DistanceY", 0, 2, 3, 2, 30.0))
sketch14.addConstraint(Sketcher.Constraint("DistanceX", 1, 2, 6, 2, 5.0))
sketch14.addConstraint(Sketcher.Constraint("DistanceX", 7, 2, 4, 2, 10.0))
sketch14.addConstraint(Sketcher.Constraint("DistanceX", -1, 1, 0, 2, 15.9))
sketch14.addConstraint(Sketcher.Constraint("DistanceY", -1, 1, 0, 2, 38.3))
sketch14.addConstraint(Sketcher.Constraint("DistanceX", 4, 1, 4, 2, 40.98311))
sketch14.addConstraint(Sketcher.Constraint("DistanceY", 5, 2, 5, 1, 61.406674))
pocket9 = body.newObject("PartDesign::Pocket", "Pocket008")
pocket9.Profile = sketch14
pocket9.Length = 14.5
pocket9.Reversed = True
doc.recompute()

fillet2 = body.newObject("PartDesign::Fillet", "Fillet001")
fillet2.Base = (pocket9, edges_at(pocket9, [(1.4, 13.185, -4.25)]))
fillet2.Radius = 5
doc.recompute()

fillet3 = body.newObject("PartDesign::Fillet", "Fillet002")
fillet3.Base = (fillet2, edges_at(fillet2, [(15.9, 38.3, -4.25)]))
fillet3.Radius = 5
doc.recompute()

fillet4 = body.newObject("PartDesign::Fillet", "Fillet003")
fillet4.Base = (fillet3, edges_at(fillet3, [(20.9, 37.2, -4.25)]))
fillet4.Radius = 10
doc.recompute()

fillet5 = body.newObject("PartDesign::Fillet", "Fillet004")
fillet5.Base = (fillet4, edges_at(fillet4, [(18.4, 58.3, -11.5), (18.4, 58.3, 3)]))
fillet5.Radius = 5

doc.recompute()
